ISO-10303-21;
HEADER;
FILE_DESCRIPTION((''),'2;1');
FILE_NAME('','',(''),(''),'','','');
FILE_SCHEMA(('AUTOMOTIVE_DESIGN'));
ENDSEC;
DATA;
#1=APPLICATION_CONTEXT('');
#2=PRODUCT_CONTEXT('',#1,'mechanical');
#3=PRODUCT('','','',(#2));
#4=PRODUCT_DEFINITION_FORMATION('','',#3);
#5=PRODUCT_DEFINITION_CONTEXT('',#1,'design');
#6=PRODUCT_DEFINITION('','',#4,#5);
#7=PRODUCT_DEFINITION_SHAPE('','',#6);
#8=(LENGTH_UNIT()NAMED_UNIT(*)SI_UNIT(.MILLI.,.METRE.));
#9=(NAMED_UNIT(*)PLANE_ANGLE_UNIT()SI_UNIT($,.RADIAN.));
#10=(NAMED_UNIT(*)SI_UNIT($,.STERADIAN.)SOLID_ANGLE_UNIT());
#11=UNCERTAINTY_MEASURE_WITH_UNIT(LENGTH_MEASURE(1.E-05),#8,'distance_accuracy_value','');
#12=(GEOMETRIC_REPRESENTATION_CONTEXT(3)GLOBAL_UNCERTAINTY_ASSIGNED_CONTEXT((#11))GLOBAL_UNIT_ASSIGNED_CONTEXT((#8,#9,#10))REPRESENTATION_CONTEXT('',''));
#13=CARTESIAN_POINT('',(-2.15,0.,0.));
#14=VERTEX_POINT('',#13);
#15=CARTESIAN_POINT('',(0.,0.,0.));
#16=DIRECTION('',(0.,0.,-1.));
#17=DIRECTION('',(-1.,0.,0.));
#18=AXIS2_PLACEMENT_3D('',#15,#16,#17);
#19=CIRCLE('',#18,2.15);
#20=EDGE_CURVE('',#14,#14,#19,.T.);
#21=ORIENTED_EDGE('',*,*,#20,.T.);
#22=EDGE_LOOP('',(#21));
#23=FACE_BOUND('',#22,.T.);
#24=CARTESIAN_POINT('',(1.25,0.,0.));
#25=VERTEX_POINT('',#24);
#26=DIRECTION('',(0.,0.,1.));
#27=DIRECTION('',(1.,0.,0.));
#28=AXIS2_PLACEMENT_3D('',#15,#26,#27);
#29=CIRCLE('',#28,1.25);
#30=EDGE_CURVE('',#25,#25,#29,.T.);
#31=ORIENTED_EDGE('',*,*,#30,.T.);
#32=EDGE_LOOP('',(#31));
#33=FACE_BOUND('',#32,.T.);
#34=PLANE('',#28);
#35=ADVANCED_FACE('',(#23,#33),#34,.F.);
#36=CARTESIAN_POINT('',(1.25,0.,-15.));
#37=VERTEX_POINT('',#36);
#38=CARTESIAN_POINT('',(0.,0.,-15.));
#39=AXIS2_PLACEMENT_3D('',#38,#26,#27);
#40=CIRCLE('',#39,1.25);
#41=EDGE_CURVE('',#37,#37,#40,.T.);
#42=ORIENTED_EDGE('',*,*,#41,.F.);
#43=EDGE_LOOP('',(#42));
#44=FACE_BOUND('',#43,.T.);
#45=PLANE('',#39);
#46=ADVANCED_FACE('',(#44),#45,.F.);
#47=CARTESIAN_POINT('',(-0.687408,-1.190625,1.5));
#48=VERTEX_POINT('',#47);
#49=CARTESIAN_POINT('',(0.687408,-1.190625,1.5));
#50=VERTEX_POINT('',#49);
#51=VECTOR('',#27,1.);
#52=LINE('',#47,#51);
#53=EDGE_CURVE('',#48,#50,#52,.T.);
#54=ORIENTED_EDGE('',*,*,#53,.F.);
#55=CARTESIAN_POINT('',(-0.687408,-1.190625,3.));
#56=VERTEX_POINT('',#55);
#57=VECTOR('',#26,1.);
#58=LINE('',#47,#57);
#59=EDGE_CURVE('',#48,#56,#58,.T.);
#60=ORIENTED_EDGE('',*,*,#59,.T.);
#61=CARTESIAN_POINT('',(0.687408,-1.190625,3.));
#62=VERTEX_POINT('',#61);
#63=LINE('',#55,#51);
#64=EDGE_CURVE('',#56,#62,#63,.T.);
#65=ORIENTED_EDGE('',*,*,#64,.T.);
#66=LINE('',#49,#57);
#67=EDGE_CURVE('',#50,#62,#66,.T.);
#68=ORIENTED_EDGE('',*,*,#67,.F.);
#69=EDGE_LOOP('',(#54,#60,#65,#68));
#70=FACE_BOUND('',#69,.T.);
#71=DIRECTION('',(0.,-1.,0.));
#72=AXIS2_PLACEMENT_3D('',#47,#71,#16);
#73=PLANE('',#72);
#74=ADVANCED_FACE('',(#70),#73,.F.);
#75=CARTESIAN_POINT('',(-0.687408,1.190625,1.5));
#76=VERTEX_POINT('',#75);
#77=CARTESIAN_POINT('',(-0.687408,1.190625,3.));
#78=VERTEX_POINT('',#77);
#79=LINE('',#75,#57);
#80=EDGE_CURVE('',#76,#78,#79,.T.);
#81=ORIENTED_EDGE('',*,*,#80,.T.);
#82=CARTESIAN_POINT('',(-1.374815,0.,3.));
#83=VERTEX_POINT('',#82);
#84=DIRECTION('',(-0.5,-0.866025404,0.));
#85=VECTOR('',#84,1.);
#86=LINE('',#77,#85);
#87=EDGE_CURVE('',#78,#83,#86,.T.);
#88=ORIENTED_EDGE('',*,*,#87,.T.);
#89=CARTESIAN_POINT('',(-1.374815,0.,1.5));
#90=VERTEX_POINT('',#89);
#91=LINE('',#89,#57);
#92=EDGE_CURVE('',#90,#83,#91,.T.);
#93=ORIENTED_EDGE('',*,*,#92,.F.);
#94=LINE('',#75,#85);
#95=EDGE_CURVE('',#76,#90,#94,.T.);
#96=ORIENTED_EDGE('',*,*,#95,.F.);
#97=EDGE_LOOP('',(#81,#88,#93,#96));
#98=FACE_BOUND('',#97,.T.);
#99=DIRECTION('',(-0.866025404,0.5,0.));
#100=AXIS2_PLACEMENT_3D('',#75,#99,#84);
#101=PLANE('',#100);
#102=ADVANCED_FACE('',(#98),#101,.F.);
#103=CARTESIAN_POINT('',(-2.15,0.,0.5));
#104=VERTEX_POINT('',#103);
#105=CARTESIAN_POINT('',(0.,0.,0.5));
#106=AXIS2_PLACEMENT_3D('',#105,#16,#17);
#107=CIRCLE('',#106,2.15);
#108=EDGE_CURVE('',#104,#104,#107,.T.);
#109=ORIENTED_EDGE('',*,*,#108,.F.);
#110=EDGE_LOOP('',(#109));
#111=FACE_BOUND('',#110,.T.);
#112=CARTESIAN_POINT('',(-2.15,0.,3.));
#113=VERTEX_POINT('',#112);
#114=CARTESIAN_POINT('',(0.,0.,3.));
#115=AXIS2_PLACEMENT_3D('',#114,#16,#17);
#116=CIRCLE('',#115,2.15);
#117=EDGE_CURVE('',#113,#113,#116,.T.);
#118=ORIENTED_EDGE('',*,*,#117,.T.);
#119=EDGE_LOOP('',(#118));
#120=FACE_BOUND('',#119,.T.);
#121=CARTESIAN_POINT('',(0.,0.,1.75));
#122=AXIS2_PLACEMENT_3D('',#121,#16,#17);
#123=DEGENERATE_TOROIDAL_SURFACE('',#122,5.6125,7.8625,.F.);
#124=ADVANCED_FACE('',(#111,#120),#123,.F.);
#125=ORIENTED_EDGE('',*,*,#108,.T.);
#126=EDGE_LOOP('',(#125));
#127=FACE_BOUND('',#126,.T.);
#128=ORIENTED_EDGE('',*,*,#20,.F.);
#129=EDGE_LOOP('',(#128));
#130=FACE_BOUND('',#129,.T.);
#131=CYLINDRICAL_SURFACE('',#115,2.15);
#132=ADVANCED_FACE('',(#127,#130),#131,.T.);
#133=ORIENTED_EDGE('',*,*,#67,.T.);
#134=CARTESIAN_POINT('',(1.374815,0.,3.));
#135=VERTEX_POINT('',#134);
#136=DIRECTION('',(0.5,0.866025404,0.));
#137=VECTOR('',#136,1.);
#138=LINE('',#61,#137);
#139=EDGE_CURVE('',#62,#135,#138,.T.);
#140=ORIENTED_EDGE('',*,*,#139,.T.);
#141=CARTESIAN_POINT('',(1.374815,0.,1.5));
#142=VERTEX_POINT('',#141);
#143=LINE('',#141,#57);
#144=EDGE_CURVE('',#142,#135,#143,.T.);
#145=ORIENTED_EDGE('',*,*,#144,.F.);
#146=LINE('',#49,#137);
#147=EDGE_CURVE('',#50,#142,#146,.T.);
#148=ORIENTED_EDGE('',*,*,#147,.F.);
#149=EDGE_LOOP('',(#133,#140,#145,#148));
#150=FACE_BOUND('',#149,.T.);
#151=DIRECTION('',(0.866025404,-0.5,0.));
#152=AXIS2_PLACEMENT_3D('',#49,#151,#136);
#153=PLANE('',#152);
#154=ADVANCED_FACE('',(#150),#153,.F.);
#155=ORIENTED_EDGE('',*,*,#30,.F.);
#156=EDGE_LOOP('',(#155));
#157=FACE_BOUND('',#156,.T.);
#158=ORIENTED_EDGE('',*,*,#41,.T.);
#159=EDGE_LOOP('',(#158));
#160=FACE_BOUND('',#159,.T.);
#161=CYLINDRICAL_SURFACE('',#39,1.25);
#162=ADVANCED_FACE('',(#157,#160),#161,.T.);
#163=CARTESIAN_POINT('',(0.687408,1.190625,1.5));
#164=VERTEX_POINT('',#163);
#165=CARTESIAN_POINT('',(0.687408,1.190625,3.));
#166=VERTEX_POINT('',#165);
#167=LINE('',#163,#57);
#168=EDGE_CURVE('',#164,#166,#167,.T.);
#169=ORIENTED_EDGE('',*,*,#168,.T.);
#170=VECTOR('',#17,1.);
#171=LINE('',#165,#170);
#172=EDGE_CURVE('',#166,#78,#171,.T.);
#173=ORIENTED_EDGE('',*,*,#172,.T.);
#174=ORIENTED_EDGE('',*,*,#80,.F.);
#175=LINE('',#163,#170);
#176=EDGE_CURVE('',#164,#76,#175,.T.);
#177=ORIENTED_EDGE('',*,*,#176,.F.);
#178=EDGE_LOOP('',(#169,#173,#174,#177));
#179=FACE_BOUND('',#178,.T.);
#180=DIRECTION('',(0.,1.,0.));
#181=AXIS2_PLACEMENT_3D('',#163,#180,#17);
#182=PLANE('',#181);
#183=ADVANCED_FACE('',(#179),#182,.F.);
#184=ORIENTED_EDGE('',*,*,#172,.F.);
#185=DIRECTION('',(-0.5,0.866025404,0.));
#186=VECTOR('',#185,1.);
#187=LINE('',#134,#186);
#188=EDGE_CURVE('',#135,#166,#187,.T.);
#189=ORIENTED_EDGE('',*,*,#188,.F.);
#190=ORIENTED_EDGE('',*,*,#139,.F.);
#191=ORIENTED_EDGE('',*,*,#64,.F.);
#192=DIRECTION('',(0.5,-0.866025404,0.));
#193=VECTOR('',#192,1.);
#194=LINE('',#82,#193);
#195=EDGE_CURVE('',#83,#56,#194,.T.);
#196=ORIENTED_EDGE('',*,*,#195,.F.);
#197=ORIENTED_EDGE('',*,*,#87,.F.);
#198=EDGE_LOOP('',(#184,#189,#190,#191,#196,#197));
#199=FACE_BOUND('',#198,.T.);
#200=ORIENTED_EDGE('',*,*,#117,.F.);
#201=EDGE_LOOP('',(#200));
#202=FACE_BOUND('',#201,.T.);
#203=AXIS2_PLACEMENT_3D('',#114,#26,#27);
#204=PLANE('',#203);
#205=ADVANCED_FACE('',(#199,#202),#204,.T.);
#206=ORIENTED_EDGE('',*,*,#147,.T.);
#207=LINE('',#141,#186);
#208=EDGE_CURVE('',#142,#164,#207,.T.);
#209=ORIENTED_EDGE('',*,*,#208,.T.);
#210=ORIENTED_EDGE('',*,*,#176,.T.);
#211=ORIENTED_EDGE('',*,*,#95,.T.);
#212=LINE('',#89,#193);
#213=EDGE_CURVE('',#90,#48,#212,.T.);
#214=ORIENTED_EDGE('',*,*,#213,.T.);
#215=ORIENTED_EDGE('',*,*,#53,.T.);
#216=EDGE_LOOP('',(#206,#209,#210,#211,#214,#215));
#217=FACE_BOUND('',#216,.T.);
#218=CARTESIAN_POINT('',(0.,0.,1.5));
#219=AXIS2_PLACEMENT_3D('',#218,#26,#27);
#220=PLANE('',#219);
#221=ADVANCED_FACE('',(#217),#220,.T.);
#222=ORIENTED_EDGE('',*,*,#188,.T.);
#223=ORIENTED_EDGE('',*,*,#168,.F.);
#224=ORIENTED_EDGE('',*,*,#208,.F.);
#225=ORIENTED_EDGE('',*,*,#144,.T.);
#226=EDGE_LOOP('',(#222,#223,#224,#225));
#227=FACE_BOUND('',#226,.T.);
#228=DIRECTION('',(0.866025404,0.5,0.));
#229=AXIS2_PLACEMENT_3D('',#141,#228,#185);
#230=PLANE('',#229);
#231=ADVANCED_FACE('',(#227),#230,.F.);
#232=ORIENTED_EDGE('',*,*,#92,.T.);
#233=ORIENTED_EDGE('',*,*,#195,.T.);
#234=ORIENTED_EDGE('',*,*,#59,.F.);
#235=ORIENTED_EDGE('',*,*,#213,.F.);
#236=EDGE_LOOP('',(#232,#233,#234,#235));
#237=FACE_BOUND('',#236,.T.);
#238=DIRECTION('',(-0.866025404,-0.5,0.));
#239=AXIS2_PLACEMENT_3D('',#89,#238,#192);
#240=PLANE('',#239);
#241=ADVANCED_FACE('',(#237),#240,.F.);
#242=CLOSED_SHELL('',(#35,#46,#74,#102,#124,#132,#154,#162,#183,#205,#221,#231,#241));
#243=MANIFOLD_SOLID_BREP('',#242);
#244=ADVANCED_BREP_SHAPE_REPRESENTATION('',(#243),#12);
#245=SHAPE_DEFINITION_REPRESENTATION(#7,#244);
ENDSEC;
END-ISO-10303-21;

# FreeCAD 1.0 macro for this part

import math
import FreeCAD as App
import Part
import Sketcher
Q = App.Units.Quantity


def add_polygon(sketch, points):
    """Adds a closed chain of lines whose ends are joined by coincident constraints."""
    first, n = sketch.GeometryCount, len(points)
    for a, b in zip(points, points[1:] + points[:1]):
        sketch.addGeometry(Part.LineSegment(App.Vector(*a, 0), App.Vector(*b, 0)), False)
    for i in range(n):
        sketch.addConstraint(Sketcher.Constraint("Coincident", first + i, 2, first + (i + 1) % n, 1))

doc = App.newDocument("Part")
params = doc.addObject("Spreadsheet::Sheet", "Params")
for row, (alias, value) in enumerate([
    ("sketch1_diameter", "2.5 mm"),
    ("pad1_length", "15 mm"),
    ("sketch2_diameter", "4.5 mm"),
    ("pad2_length", "3 mm"),
    ("sketch3_height", "3 mm"),
    ("sketch3_width", "0.6 mm"),
    ("sketch3_height2", "0.5 mm"),
    ("groove_angle", "360 deg"),
    ("pocket1_length", "1.5 mm"),
], start=1):
    params.set(f"A{row}", alias)
    params.set(f"B{row}", "=" + value)
    params.setAlias(f"B{row}", alias)

body = doc.addObject("PartDesign::Body", "Body")

sketch1 = body.newObject("Sketcher::SketchObject", "Sketch")
sketch1.AttachmentSupport = (doc.getObject("XY_Plane"), [""])
sketch1.MapMode = "FlatFace"
sketch1.addGeometry(Part.Circle(App.Vector(0, 0, 0), App.Vector(0, 0, 1), 1.2), False)
sketch1.addConstraint(Sketcher.Constraint("Coincident", 0, 3, -1, 1))
sketch1.addConstraint(Sketcher.Constraint("Diameter", 0, Q("2.5 mm")))
sketch1.setExpression("Constraints[1]", "Params.sketch1_diameter")
pad1 = body.newObject("PartDesign::Pad", "Pad")
pad1.Profile = sketch1
pad1.setExpression("Length", "Params.pad1_length")
pad1.Reversed = True

sketch2 = body.newObject("Sketcher::SketchObject", "Sketch001")
sketch2.AttachmentSupport = (doc.getObject("XY_Plane"), [""])
sketch2.MapMode = "FlatFace"
sketch2.addGeometry(Part.Circle(App.Vector(0, 0, 0), App.Vector(0, 0, 1), 2.2), False)
sketch2.addConstraint(Sketcher.Constraint("Coincident", 0, 3, -1, 1))
sketch2.addConstraint(Sketcher.Constraint("Diameter", 0, Q("4.5 mm")))
sketch2.setExpression("Constraints[1]", "Params.sketch2_diameter")
pad2 = body.newObject("PartDesign::Pad", "Pad001")
pad2.Profile = sketch2
pad2.setExpression("Length", "Params.pad2_length")

sketch3 = body.newObject("Sketcher::SketchObject", "Sketch002")
sketch3.AttachmentSupport = (doc.getObject("YZ_Plane"), [""])
sketch3.MapMode = "FlatFace"
sketch3.addGeometry(Part.LineSegment(App.Vector(2.8, 3, 0), App.Vector(2.1, 3, 0)), False)
sketch3.addGeometry(Part.ArcOfCircle(Part.Circle(App.Vector(-5.6, 1.8, 0), App.Vector(0, 0, 1), 7.9), math.radians(-9.15), math.radians(9.15)), False)
sketch3.addGeometry(Part.LineSegment(App.Vector(2.1, 0.5, 0), App.Vector(2.1, 0, 0)), False)
sketch3.addGeometry(Part.LineSegment(App.Vector(2.1, 0, 0), App.Vector(2.8, 0, 0)), False)
sketch3.addGeometry(Part.LineSegment(App.Vector(2.8, 0, 0), App.Vector(2.8, 3, 0)), False)
sketch3.addConstraint(Sketcher.Constraint("Coincident", 0, 2, 1, 2))
sketch3.addConstraint(Sketcher.Constraint("Coincident", 1, 1, 2, 1))
sketch3.addConstraint(Sketcher.Constraint("Coincident", 2, 2, 3, 1))
sketch3.addConstraint(Sketcher.Constraint("Coincident", 3, 2, 4, 1))
sketch3.addConstraint(Sketcher.Constraint("Coincident", 4, 2, 0, 1))
sketch3.addConstraint(Sketcher.Constraint("Horizontal", 0))
sketch3.addConstraint(Sketcher.Constraint("Vertical", 2))
sketch3.addConstraint(Sketcher.Constraint("Horizontal", 3))
sketch3.addConstraint(Sketcher.Constraint("Vertical", 4))
sketch3.addConstraint(Sketcher.Constraint("PointOnObject", 2, 2, -1))
sketch3.addConstraint(Sketcher.Constraint("Vertical", 0, 2, 1, 1))
sketch3.addConstraint(Sketcher.Constraint("DistanceY", 4, 1, 4, 2, Q("3 mm")))
sketch3.addConstraint(Sketcher.Constraint("DistanceX", 0, 2, 0, 1, Q("0.6 mm")))
sketch3.addConstraint(Sketcher.Constraint("DistanceY", 2, 2, 2, 1, Q("0.5 mm")))
sketch3.addConstraint(Sketcher.Constraint("Radius", 1, Q("7.8625 mm")))
sketch3.addConstraint(Sketcher.Constraint("DistanceX", -1, 1, 0, 2, Q("2.15 mm")))
sketch3.setExpression("Constraints[11]", "Params.sketch3_height")
sketch3.setExpression("Constraints[12]", "Params.sketch3_width")
sketch3.setExpression("Constraints[13]", "Params.sketch3_height2")
groove = body.newObject("PartDesign::Groove", "Groove")
groove.Profile = sketch3
groove.ReferenceAxis = (sketch3, ["V_Axis"])
groove.setExpression("Angle", "Params.groove_angle")

sketch4 = body.newObject("Sketcher::SketchObject", "Sketch003")
sketch4.AttachmentSupport = (doc.getObject("XY_Plane"), [""])
sketch4.MapMode = "FlatFace"
sketch4.AttachmentOffset = App.Placement(App.Vector(0, 0, 3), App.Rotation())
add_polygon(sketch4, [(1.4, 0), (0.7, 1.2), (-0.7, 1.2), (-1.4, 0), (-0.7, -1.2), (0.7, -1.2)])
sketch4.addConstraint(Sketcher.Constraint("Horizontal", 1))
sketch4.addConstraint(Sketcher.Constraint("Horizontal", 4))
sketch4.addConstraint(Sketcher.Constraint("Symmetric", 0, 2, 3, 2, -1, 1))
sketch4.addConstraint(Sketcher.Constraint("Symmetric", 2, 2, 5, 2, -1, 1))
sketch4.addConstraint(Sketcher.Constraint("PointOnObject", 2, 2, -1))
sketch4.addConstraint(Sketcher.Constraint("Parallel", 2, 5))
sketch4.addConstraint(Sketcher.Constraint("Vertical", 1, 2, 3, 2))
sketch4.addConstraint(Sketcher.Constraint("Angle", 0, Q("120 deg")))
sketch4.addConstraint(Sketcher.Constraint("DistanceX", 1, 2, 1, 1, Q("1.374815 mm")))
sketch4.addConstraint(Sketcher.Constraint("DistanceY", 3, 2, 1, 2, Q("2.38125 mm")))
pocket1 = body.newObject("PartDesign::Pocket", "Pocket")
pocket1.Profile = sketch4
pocket1.setExpression("Length", "Params.pocket1_length")

doc.recompute()
